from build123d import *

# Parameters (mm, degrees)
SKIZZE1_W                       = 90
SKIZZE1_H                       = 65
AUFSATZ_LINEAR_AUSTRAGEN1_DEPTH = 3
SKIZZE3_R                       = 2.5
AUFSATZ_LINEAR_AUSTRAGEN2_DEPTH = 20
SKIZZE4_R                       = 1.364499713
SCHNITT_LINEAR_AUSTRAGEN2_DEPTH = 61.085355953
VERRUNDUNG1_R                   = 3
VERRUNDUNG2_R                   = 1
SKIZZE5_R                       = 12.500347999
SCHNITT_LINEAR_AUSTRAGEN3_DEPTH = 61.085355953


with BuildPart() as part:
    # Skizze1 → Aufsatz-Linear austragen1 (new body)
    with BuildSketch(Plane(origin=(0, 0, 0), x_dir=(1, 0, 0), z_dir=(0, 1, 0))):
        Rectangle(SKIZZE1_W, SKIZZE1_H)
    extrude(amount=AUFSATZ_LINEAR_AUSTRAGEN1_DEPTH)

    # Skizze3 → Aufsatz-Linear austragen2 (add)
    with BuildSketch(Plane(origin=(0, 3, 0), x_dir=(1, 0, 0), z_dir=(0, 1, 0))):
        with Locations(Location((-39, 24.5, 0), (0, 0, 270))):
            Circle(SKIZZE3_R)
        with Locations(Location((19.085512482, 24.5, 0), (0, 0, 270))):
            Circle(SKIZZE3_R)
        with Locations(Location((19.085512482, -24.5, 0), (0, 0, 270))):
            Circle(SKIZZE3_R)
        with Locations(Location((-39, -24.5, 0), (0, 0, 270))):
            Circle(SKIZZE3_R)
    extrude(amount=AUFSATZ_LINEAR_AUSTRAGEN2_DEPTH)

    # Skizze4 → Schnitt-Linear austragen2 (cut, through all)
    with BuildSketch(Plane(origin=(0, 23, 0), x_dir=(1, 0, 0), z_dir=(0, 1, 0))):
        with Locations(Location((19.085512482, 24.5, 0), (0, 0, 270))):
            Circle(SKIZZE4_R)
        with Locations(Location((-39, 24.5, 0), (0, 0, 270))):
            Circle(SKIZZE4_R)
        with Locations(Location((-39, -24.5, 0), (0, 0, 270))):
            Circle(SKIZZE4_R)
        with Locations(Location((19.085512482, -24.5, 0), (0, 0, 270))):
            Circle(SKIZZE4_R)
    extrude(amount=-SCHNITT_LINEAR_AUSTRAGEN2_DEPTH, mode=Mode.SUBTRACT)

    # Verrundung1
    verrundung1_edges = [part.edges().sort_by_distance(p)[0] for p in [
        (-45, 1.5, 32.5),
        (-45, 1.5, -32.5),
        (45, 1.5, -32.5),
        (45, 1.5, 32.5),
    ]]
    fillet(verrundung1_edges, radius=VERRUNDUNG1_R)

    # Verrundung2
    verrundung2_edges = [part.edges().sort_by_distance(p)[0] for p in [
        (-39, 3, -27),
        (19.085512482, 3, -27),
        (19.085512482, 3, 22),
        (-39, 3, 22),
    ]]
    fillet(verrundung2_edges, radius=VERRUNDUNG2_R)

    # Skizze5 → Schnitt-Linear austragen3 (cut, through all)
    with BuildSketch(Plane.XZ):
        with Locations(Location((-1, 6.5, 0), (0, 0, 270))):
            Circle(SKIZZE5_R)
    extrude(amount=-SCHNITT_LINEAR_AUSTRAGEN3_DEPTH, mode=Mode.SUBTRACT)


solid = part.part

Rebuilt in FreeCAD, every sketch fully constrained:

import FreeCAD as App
import Part
import Sketcher
from FreeCAD import Vector
Q = App.Units.Quantity


def edges_at(feature, points):
    """Names of the edges that pass closest to the given points."""
    edges = feature.Shape.Edges
    near = lambda p: min(range(len(edges)), key=lambda i: edges[i].distToShape(Part.Vertex(*p))[0])
    return sorted({f"Edge{near(p) + 1}" for p in points})

doc = App.newDocument("Part")
body = doc.addObject("PartDesign::Body", "Body")

# Sketch on XZ plane
sketch1 = body.newObject("Sketcher::SketchObject", "Sketch")
sketch1.AttachmentSupport = (doc.getObject("XZ_Plane"), [""])
sketch1.MapMode = "FlatFace"
sketch1.addGeometry([
    Part.LineSegment(Vector(-45, -32.5, 0), Vector(-45, 32.5, 0)),
    Part.LineSegment(Vector(-45, 32.5, 0), Vector(45, 32.5, 0)),
    Part.LineSegment(Vector(45, 32.5, 0), Vector(45, -32.5, 0)),
    Part.LineSegment(Vector(45, -32.5, 0), Vector(-45, -32.5, 0)),
], False)
sketch1.addConstraint([
    Sketcher.Constraint("Coincident", 0, 2, 1, 1),
    Sketcher.Constraint("Coincident", 1, 2, 2, 1),
    Sketcher.Constraint("Coincident", 2, 2, 3, 1),
    Sketcher.Constraint("Coincident", 3, 2, 0, 1),
    Sketcher.Constraint("Vertical", 0),
    Sketcher.Constraint("Horizontal", 1),
    Sketcher.Constraint("Vertical", 2),
    Sketcher.Constraint("Horizontal", 3),
    Sketcher.Constraint("Symmetric", 0, 2, 2, 2, -1, 1),
    Sketcher.Constraint("DistanceX", 1, 1, 1, 2, Q("90 mm")),
    Sketcher.Constraint("DistanceY", 0, 1, 0, 2, Q("65 mm")),
])
pad1 = body.newObject("PartDesign::Pad", "Pad")
pad1.Profile = sketch1
pad1.Length = 3
pad1.Reversed = True

# Sketch on XZ plane
sketch2 = body.newObject("Sketcher::SketchObject", "Sketch001")
sketch2.AttachmentSupport = (doc.getObject("XZ_Plane"), [""])
sketch2.MapMode = "FlatFace"
sketch2.AttachmentOffset = App.Placement(Vector(0, 0, -3), App.Rotation())
sketch2.addGeometry([
    Part.Circle(Vector(-39, -24.5, 0), Vector(0, 0, 1), 2.5),
    Part.Circle(Vector(19.085512, -24.5, 0), Vector(0, 0, 1), 2.5),
    Part.Circle(Vector(19.085512, 24.5, 0), Vector(0, 0, 1), 2.5),
    Part.Circle(Vector(-39, 24.5, 0), Vector(0, 0, 1), 2.5),
], False)
sketch2.addConstraint([
    Sketcher.Constraint("Equal", 0, 1),
    Sketcher.Constraint("Equal", 1, 2),
    Sketcher.Constraint("Equal", 2, 3),
    Sketcher.Constraint("Symmetric", 1, 3, 2, 3, -1),
    Sketcher.Constraint("Symmetric", 0, 3, 3, 3, -1),
    Sketcher.Constraint("Horizontal", 0, 3, 1, 3),
    Sketcher.Constraint("Diameter", 0, Q("5 mm")),
    Sketcher.Constraint("DistanceX", 0, 3, -1, 1, Q("39 mm")),
    Sketcher.Constraint("DistanceY", 1, 3, 2, 3, Q("49 mm")),
    Sketcher.Constraint("DistanceX", -1, 1, 1, 3, Q("19.085512 mm")),
])
pad2 = body.newObject("PartDesign::Pad", "Pad001")
pad2.Profile = sketch2
pad2.Length = 20
pad2.Reversed = True

# Sketch on XZ plane
sketch3 = body.newObject("Sketcher::SketchObject", "Sketch002")
sketch3.AttachmentSupport = (doc.getObject("XZ_Plane"), [""])
sketch3.MapMode = "FlatFace"
sketch3.AttachmentOffset = App.Placement(Vector(0, 0, -23), App.Rotation())
sketch3.addGeometry([
    Part.Circle(Vector(19.085512, -24.5, 0), Vector(0, 0, 1), 1.3645),
    Part.Circle(Vector(-39, -24.5, 0), Vector(0, 0, 1), 1.3645),
    Part.Circle(Vector(-39, 24.5, 0), Vector(0, 0, 1), 1.3645),
    Part.Circle(Vector(19.085512, 24.5, 0), Vector(0, 0, 1), 1.3645),
], False)
sketch3.addConstraint([
    Sketcher.Constraint("Equal", 0, 1),
    Sketcher.Constraint("Equal", 1, 2),
    Sketcher.Constraint("Equal", 2, 3),
    Sketcher.Constraint("Symmetric", 1, 3, 2, 3, -1),
    Sketcher.Constraint("Symmetric", 0, 3, 3, 3, -1),
    Sketcher.Constraint("Horizontal", 0, 3, 1, 3),
    Sketcher.Constraint("Diameter", 0, Q("2.728999 mm")),
    Sketcher.Constraint("DistanceX", 1, 3, -1, 1, Q("39 mm")),
    Sketcher.Constraint("DistanceY", 1, 3, 2, 3, Q("49 mm")),
    Sketcher.Constraint("DistanceX", -1, 1, 0, 3, Q("19.085512 mm")),
])
pocket1 = body.newObject("PartDesign::Pocket", "Pocket")
pocket1.Profile = sketch3
pocket1.Type = "ThroughAll"
pocket1.Reversed = True
doc.recompute()

fillet = body.newObject("PartDesign::Fillet", "Fillet")
fillet.Base = (pocket1, edges_at(pocket1, [
    (-45, 1.5, 32.5),
    (-45, 1.5, -32.5),
    (45, 1.5, -32.5),
    (45, 1.5, 32.5),
]))
fillet.Radius = 3
doc.recompute()

fillet2 = body.newObject("PartDesign::Fillet", "Fillet001")
fillet2.Base = (fillet, edges_at(fillet, [
    (-39, 3, -27),
    (19.086, 3, -27),
    (19.086, 3, 22),
    (-39, 3, 22),
]))
fillet2.Radius = 1

# Sketch on XZ plane
sketch4 = body.newObject("Sketcher::SketchObject", "Sketch003")
sketch4.AttachmentSupport = (doc.getObject("XZ_Plane"), [""])
sketch4.MapMode = "FlatFace"
sketch4.addGeometry(Part.Circle(Vector(-1, 6.5, 0), Vector(0, 0, 1), 12.500348), False)
sketch4.addConstraint([
    Sketcher.Constraint("DistanceX", 0, 3, -1, 1, Q("1 mm")),
    Sketcher.Constraint("DistanceY", -1, 1, 0, 3, Q("6.5 mm")),
    Sketcher.Constraint("Diameter", 0, Q("25.000696 mm")),
])
pocket2 = body.newObject("PartDesign::Pocket", "Pocket001")
pocket2.Profile = sketch4
pocket2.Type = "ThroughAll"

doc.recompute()
